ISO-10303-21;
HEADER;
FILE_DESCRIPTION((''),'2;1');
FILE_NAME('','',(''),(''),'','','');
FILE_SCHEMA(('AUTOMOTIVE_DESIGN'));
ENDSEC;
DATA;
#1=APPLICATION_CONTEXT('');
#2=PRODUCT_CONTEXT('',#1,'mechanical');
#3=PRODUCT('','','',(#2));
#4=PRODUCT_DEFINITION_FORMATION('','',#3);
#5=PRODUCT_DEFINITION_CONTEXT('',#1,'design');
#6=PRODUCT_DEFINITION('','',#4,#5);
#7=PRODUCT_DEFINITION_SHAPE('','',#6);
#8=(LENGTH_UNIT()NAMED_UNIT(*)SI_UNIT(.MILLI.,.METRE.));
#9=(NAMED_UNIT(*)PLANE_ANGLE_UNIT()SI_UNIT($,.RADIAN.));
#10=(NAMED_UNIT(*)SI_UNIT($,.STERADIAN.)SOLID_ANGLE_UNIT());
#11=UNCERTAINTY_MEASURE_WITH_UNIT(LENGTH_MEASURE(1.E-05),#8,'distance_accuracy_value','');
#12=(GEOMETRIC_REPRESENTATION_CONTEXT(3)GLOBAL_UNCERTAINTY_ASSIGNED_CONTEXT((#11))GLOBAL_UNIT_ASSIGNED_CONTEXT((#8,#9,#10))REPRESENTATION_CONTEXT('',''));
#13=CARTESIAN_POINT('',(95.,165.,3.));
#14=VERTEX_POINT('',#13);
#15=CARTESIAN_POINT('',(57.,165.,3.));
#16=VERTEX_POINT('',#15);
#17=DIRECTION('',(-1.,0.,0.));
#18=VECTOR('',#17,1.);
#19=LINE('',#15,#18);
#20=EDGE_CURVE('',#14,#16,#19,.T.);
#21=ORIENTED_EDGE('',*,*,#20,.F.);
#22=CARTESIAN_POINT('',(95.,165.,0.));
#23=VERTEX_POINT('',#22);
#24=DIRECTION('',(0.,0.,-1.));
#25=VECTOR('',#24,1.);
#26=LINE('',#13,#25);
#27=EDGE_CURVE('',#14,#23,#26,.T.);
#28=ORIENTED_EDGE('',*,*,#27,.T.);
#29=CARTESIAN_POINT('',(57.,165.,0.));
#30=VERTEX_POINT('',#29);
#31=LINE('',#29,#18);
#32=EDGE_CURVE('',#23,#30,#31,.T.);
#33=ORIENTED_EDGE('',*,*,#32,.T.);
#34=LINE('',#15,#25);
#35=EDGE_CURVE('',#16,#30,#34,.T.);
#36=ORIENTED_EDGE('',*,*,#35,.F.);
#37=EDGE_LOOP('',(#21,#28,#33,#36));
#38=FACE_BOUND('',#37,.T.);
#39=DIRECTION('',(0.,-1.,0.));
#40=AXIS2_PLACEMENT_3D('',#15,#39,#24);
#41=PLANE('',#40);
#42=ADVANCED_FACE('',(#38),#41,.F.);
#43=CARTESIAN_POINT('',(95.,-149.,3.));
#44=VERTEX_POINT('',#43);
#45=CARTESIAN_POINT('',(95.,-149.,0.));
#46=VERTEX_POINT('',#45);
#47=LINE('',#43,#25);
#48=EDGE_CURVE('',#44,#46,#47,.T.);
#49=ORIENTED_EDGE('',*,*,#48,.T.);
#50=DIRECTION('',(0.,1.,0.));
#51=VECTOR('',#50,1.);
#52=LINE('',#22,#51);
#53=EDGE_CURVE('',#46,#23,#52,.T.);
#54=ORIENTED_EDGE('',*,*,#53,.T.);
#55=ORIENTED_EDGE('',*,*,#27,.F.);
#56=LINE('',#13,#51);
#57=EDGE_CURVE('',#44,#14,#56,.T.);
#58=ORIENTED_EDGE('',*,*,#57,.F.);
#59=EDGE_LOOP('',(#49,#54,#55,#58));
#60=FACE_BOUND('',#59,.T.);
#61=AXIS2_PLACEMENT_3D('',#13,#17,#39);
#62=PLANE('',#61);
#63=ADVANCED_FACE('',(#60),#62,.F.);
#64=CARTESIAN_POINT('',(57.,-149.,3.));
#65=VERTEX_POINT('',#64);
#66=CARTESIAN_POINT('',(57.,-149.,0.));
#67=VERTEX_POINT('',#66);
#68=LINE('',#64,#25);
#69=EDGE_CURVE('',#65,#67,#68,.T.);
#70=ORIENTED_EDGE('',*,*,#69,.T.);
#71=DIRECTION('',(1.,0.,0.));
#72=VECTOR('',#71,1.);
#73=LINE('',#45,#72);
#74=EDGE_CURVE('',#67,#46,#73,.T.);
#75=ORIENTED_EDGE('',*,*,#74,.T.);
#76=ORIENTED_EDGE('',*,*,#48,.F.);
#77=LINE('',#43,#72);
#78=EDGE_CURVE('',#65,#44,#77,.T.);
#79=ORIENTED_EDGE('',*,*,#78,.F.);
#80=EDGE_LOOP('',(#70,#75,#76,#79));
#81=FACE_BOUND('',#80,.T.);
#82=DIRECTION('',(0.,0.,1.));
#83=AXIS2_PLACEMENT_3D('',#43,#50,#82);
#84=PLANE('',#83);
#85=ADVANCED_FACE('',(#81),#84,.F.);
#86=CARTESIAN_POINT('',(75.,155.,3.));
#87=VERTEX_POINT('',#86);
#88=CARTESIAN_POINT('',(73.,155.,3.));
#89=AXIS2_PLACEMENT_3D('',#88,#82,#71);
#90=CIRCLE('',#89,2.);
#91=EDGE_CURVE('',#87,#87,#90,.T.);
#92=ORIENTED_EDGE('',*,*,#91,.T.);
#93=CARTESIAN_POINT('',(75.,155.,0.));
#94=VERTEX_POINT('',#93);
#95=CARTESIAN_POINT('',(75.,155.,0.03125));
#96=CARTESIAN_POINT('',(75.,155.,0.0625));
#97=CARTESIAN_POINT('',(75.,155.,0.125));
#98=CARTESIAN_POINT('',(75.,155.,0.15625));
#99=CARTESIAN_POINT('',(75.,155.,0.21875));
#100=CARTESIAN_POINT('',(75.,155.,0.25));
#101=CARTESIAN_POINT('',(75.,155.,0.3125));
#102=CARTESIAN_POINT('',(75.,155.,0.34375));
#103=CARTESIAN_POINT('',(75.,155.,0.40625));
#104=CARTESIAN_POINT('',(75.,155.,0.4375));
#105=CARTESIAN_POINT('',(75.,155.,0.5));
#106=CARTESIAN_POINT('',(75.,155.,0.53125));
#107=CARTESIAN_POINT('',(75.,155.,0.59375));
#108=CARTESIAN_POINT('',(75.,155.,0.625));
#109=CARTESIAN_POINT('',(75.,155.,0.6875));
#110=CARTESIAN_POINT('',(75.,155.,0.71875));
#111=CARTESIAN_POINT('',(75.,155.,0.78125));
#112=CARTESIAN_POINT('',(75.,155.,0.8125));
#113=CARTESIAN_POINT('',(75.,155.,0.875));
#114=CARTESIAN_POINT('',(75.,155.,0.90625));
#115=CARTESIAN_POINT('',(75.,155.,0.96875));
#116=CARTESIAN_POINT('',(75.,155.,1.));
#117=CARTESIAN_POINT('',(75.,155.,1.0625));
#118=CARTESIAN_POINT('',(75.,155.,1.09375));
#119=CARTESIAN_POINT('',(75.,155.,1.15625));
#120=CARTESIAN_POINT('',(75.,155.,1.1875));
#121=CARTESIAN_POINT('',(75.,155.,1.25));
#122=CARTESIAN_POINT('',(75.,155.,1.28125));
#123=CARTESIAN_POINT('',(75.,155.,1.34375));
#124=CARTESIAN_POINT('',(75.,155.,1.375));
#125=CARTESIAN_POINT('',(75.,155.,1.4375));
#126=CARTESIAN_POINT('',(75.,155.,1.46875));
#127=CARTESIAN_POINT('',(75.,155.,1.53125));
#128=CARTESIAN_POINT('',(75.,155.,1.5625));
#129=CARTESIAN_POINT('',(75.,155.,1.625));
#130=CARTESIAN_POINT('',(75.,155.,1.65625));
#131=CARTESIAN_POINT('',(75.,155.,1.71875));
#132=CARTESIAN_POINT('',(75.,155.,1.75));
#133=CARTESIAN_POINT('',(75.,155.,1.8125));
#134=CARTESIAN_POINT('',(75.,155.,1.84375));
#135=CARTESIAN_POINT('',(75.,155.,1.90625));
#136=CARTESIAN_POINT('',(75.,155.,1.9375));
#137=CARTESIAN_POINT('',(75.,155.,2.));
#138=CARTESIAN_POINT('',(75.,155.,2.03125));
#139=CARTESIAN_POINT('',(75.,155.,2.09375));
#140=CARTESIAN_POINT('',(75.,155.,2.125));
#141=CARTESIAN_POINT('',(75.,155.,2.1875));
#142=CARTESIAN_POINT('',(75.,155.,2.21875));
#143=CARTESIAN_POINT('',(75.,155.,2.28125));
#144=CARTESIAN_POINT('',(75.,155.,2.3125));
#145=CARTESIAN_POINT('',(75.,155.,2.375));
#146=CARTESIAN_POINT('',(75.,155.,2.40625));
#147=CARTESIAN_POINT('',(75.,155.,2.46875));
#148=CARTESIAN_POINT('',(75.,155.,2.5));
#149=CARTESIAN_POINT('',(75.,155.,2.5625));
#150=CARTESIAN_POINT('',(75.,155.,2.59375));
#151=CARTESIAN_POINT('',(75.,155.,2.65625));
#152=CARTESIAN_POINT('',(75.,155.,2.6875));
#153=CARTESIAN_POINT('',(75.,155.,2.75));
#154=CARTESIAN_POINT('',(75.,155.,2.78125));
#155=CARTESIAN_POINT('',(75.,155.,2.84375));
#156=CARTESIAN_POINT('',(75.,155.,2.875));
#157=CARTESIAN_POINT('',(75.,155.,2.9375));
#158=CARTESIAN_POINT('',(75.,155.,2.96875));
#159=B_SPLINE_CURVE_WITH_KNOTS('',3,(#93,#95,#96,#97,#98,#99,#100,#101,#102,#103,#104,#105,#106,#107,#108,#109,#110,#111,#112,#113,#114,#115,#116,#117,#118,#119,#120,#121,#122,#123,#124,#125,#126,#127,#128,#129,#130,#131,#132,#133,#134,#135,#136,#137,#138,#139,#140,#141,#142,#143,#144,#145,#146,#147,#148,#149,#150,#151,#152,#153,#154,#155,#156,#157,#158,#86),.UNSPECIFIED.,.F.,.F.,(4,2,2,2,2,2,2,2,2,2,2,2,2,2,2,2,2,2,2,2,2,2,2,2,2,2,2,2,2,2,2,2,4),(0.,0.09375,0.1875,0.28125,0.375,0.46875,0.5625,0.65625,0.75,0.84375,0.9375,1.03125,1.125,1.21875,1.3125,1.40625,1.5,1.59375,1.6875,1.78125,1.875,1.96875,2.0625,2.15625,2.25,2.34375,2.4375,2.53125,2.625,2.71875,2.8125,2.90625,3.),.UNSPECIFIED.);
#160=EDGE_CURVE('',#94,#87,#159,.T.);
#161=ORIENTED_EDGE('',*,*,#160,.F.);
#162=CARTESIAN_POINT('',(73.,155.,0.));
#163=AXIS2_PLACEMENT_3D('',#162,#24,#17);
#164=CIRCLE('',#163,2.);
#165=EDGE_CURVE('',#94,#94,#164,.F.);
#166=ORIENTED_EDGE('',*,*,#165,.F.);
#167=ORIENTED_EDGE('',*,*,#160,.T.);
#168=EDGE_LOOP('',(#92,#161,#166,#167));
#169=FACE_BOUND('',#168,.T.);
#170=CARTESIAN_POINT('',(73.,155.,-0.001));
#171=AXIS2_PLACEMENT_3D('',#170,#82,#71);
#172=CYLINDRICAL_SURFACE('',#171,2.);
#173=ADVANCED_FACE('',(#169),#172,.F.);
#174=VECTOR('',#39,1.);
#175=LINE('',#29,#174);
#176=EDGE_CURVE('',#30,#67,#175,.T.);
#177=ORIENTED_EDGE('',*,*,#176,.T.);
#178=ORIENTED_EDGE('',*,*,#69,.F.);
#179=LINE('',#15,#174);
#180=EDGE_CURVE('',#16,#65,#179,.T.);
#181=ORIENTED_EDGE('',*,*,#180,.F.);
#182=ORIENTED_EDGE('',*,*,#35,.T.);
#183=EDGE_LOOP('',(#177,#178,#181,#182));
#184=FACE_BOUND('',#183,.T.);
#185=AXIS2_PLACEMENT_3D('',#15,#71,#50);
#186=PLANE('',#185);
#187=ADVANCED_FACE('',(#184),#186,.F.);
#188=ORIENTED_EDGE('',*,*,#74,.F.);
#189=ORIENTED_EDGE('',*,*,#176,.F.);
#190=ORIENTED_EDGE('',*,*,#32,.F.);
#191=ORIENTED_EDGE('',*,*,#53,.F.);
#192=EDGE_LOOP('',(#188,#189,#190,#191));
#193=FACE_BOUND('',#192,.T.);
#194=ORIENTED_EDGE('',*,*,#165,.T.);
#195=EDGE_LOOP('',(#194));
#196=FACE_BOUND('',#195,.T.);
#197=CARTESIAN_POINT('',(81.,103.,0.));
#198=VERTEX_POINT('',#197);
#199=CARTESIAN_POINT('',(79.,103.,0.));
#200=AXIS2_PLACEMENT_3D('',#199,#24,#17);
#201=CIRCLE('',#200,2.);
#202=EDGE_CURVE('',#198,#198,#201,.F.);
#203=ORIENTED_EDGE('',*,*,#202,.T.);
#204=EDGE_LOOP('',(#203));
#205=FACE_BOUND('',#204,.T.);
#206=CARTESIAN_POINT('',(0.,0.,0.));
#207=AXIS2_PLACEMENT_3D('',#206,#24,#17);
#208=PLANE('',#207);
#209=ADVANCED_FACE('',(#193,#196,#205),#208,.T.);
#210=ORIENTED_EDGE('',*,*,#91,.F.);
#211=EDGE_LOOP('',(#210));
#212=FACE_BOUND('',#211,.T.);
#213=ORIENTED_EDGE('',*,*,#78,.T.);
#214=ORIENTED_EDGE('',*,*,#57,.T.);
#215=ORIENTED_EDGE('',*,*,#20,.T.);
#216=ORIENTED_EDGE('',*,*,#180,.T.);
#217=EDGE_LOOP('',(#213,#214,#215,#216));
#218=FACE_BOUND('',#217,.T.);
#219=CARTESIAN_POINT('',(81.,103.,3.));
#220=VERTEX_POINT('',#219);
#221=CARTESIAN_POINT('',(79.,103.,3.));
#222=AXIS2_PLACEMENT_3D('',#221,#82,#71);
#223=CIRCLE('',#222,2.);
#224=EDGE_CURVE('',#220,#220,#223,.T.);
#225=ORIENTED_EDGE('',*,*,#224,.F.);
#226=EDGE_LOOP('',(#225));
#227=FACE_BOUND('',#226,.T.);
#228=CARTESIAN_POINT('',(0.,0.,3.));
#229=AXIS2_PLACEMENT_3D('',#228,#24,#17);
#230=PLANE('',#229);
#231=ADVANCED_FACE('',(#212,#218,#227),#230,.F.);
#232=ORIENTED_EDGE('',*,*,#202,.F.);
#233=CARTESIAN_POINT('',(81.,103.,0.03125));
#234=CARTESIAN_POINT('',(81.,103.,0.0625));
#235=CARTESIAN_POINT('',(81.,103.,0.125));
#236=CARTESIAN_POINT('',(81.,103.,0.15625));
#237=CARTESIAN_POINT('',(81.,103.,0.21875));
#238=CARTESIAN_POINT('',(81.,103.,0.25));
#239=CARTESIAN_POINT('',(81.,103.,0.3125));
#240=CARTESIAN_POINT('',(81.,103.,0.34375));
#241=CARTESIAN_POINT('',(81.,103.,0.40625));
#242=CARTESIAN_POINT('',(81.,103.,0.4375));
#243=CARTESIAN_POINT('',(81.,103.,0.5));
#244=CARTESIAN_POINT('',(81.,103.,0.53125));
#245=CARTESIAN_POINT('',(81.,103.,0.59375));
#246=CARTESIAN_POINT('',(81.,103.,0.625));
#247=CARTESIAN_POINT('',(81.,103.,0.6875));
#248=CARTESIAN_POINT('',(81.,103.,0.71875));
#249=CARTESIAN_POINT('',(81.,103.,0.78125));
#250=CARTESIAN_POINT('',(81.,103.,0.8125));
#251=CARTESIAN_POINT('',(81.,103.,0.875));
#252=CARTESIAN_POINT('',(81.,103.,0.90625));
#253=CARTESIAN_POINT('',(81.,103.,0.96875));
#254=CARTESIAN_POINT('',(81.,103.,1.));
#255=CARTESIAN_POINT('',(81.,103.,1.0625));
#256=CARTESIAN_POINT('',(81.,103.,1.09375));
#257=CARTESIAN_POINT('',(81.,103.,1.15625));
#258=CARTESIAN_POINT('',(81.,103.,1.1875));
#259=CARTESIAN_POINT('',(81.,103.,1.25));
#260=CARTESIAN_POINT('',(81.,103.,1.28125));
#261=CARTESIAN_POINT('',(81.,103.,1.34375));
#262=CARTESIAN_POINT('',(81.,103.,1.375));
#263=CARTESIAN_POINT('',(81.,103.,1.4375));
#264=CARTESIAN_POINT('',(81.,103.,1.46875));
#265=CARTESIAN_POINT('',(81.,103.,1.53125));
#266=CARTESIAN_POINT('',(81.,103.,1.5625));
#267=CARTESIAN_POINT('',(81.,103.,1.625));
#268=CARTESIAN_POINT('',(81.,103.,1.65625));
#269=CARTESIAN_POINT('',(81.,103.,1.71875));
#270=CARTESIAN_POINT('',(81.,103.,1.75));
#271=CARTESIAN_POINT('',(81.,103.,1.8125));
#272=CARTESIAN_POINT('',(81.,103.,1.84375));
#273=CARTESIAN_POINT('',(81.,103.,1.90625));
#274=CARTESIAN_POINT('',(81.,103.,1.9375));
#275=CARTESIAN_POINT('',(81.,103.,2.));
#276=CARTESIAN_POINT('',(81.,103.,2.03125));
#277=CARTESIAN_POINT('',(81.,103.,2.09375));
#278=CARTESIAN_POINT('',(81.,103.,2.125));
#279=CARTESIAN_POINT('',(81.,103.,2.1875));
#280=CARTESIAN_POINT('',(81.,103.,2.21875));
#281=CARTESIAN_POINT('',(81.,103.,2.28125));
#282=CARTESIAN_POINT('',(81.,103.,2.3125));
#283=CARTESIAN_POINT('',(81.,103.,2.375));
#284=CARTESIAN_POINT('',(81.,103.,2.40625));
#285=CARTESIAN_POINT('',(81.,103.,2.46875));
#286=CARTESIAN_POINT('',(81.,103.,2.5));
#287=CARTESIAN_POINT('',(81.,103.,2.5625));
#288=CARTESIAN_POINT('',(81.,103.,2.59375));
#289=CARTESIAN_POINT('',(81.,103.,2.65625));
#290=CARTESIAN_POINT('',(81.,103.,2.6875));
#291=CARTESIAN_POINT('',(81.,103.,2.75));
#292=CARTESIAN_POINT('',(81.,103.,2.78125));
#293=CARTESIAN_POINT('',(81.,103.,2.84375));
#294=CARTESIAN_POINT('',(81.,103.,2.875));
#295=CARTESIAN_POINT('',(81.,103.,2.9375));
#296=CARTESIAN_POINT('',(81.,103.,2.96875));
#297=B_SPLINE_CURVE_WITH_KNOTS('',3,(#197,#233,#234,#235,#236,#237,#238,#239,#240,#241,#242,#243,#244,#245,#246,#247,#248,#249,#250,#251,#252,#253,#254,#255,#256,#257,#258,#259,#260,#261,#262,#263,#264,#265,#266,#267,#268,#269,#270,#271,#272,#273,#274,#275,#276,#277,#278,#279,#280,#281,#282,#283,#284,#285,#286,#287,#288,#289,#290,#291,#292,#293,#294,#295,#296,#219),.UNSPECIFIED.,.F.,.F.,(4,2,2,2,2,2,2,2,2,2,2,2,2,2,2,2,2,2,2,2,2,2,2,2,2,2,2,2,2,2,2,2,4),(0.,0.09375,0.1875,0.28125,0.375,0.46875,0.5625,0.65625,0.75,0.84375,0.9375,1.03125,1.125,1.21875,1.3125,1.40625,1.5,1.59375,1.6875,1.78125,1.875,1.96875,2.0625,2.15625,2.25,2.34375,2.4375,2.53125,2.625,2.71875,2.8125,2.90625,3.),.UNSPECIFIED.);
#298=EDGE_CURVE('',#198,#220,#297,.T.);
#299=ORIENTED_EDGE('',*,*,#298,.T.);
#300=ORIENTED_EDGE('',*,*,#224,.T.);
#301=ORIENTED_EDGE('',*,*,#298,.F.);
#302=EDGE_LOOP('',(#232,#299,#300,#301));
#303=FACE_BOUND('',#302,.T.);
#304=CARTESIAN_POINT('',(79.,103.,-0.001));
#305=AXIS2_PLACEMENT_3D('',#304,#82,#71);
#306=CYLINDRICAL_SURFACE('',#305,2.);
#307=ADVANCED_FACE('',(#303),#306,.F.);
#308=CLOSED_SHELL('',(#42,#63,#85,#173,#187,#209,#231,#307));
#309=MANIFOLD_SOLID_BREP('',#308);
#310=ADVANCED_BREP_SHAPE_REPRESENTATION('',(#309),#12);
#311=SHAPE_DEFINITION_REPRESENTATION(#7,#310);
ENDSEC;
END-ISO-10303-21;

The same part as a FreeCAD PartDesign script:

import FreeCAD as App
import Part
import Sketcher
Q = App.Units.Quantity

doc = App.newDocument("Part")
body = doc.addObject("PartDesign::Body", "Body")

# Sketch on XY plane
sketch1 = body.newObject("Sketcher::SketchObject", "Sketch")
sketch1.AttachmentSupport = (doc.getObject("XY_Plane"), [""])
sketch1.MapMode = "FlatFace"
sketch1.addGeometry([
    Part.LineSegment(App.Vector(57, 165, 0), App.Vector(57, -149, 0)),
    Part.LineSegment(App.Vector(57, -149, 0), App.Vector(95, -149, 0)),
    Part.LineSegment(App.Vector(95, -149, 0), App.Vector(95, 165, 0)),
    Part.LineSegment(App.Vector(95, 165, 0), App.Vector(57, 165, 0)),
], False)
sketch1.addConstraint([
    Sketcher.Constraint("Coincident", 0, 2, 1, 1),
    Sketcher.Constraint("Coincident", 1, 2, 2, 1),
    Sketcher.Constraint("Coincident", 2, 2, 3, 1),
    Sketcher.Constraint("Coincident", 3, 2, 0, 1),
    Sketcher.Constraint("Vertical", 0),
    Sketcher.Constraint("Horizontal", 1),
    Sketcher.Constraint("Vertical", 2),
    Sketcher.Constraint("Horizontal", 3),
    Sketcher.Constraint("DistanceX", 1, 1, 1, 2, Q("38 mm")),
    Sketcher.Constraint("DistanceY", 0, 2, 0, 1, Q("314 mm")),
    Sketcher.Constraint("DistanceX", -1, 1, 0, 2, Q("57 mm")),
    Sketcher.Constraint("DistanceY", 0, 2, -1, 1, Q("149 mm")),
])
pad1 = body.newObject("PartDesign::Pad", "Pad")
pad1.Profile = sketch1
pad1.Length = 3

# Sketch on XY plane
sketch2 = body.newObject("Sketcher::SketchObject", "Sketch001")
sketch2.AttachmentSupport = (doc.getObject("XY_Plane"), [""])
sketch2.MapMode = "FlatFace"
sketch2.AttachmentOffset = App.Placement(App.Vector(0, 0, 3), App.Rotation())
sketch2.addGeometry(Part.Circle(App.Vector(73, 155, 0), App.Vector(0, 0, 1), 2), False)
sketch2.addConstraint([
    Sketcher.Constraint("Diameter", 0, Q("4 mm")),
    Sketcher.Constraint("DistanceX", -1, 1, 0, 3, Q("73 mm")),
    Sketcher.Constraint("DistanceY", -1, 1, 0, 3, Q("155 mm")),
])
pocket1 = body.newObject("PartDesign::Pocket", "Pocket")
pocket1.Profile = sketch2
pocket1.Type = "UpToFirst"

# Sketch on XY plane
sketch3 = body.newObject("Sketcher::SketchObject", "Sketch002")
sketch3.AttachmentSupport = (doc.getObject("XY_Plane"), [""])
sketch3.MapMode = "FlatFace"
sketch3.AttachmentOffset = App.Placement(App.Vector(0, 0, 3), App.Rotation())
sketch3.addGeometry(Part.Circle(App.Vector(79, 103, 0), App.Vector(0, 0, 1), 2), False)
sketch3.addConstraint([
    Sketcher.Constraint("Diameter", 0, Q("4 mm")),
    Sketcher.Constraint("DistanceX", -1, 1, 0, 3, Q("79 mm")),
    Sketcher.Constraint("DistanceY", -1, 1, 0, 3, Q("103 mm")),
])
pocket2 = body.newObject("PartDesign::Pocket", "Pocket001")
pocket2.Profile = sketch3
pocket2.Type = "UpToFirst"

doc.recompute()
